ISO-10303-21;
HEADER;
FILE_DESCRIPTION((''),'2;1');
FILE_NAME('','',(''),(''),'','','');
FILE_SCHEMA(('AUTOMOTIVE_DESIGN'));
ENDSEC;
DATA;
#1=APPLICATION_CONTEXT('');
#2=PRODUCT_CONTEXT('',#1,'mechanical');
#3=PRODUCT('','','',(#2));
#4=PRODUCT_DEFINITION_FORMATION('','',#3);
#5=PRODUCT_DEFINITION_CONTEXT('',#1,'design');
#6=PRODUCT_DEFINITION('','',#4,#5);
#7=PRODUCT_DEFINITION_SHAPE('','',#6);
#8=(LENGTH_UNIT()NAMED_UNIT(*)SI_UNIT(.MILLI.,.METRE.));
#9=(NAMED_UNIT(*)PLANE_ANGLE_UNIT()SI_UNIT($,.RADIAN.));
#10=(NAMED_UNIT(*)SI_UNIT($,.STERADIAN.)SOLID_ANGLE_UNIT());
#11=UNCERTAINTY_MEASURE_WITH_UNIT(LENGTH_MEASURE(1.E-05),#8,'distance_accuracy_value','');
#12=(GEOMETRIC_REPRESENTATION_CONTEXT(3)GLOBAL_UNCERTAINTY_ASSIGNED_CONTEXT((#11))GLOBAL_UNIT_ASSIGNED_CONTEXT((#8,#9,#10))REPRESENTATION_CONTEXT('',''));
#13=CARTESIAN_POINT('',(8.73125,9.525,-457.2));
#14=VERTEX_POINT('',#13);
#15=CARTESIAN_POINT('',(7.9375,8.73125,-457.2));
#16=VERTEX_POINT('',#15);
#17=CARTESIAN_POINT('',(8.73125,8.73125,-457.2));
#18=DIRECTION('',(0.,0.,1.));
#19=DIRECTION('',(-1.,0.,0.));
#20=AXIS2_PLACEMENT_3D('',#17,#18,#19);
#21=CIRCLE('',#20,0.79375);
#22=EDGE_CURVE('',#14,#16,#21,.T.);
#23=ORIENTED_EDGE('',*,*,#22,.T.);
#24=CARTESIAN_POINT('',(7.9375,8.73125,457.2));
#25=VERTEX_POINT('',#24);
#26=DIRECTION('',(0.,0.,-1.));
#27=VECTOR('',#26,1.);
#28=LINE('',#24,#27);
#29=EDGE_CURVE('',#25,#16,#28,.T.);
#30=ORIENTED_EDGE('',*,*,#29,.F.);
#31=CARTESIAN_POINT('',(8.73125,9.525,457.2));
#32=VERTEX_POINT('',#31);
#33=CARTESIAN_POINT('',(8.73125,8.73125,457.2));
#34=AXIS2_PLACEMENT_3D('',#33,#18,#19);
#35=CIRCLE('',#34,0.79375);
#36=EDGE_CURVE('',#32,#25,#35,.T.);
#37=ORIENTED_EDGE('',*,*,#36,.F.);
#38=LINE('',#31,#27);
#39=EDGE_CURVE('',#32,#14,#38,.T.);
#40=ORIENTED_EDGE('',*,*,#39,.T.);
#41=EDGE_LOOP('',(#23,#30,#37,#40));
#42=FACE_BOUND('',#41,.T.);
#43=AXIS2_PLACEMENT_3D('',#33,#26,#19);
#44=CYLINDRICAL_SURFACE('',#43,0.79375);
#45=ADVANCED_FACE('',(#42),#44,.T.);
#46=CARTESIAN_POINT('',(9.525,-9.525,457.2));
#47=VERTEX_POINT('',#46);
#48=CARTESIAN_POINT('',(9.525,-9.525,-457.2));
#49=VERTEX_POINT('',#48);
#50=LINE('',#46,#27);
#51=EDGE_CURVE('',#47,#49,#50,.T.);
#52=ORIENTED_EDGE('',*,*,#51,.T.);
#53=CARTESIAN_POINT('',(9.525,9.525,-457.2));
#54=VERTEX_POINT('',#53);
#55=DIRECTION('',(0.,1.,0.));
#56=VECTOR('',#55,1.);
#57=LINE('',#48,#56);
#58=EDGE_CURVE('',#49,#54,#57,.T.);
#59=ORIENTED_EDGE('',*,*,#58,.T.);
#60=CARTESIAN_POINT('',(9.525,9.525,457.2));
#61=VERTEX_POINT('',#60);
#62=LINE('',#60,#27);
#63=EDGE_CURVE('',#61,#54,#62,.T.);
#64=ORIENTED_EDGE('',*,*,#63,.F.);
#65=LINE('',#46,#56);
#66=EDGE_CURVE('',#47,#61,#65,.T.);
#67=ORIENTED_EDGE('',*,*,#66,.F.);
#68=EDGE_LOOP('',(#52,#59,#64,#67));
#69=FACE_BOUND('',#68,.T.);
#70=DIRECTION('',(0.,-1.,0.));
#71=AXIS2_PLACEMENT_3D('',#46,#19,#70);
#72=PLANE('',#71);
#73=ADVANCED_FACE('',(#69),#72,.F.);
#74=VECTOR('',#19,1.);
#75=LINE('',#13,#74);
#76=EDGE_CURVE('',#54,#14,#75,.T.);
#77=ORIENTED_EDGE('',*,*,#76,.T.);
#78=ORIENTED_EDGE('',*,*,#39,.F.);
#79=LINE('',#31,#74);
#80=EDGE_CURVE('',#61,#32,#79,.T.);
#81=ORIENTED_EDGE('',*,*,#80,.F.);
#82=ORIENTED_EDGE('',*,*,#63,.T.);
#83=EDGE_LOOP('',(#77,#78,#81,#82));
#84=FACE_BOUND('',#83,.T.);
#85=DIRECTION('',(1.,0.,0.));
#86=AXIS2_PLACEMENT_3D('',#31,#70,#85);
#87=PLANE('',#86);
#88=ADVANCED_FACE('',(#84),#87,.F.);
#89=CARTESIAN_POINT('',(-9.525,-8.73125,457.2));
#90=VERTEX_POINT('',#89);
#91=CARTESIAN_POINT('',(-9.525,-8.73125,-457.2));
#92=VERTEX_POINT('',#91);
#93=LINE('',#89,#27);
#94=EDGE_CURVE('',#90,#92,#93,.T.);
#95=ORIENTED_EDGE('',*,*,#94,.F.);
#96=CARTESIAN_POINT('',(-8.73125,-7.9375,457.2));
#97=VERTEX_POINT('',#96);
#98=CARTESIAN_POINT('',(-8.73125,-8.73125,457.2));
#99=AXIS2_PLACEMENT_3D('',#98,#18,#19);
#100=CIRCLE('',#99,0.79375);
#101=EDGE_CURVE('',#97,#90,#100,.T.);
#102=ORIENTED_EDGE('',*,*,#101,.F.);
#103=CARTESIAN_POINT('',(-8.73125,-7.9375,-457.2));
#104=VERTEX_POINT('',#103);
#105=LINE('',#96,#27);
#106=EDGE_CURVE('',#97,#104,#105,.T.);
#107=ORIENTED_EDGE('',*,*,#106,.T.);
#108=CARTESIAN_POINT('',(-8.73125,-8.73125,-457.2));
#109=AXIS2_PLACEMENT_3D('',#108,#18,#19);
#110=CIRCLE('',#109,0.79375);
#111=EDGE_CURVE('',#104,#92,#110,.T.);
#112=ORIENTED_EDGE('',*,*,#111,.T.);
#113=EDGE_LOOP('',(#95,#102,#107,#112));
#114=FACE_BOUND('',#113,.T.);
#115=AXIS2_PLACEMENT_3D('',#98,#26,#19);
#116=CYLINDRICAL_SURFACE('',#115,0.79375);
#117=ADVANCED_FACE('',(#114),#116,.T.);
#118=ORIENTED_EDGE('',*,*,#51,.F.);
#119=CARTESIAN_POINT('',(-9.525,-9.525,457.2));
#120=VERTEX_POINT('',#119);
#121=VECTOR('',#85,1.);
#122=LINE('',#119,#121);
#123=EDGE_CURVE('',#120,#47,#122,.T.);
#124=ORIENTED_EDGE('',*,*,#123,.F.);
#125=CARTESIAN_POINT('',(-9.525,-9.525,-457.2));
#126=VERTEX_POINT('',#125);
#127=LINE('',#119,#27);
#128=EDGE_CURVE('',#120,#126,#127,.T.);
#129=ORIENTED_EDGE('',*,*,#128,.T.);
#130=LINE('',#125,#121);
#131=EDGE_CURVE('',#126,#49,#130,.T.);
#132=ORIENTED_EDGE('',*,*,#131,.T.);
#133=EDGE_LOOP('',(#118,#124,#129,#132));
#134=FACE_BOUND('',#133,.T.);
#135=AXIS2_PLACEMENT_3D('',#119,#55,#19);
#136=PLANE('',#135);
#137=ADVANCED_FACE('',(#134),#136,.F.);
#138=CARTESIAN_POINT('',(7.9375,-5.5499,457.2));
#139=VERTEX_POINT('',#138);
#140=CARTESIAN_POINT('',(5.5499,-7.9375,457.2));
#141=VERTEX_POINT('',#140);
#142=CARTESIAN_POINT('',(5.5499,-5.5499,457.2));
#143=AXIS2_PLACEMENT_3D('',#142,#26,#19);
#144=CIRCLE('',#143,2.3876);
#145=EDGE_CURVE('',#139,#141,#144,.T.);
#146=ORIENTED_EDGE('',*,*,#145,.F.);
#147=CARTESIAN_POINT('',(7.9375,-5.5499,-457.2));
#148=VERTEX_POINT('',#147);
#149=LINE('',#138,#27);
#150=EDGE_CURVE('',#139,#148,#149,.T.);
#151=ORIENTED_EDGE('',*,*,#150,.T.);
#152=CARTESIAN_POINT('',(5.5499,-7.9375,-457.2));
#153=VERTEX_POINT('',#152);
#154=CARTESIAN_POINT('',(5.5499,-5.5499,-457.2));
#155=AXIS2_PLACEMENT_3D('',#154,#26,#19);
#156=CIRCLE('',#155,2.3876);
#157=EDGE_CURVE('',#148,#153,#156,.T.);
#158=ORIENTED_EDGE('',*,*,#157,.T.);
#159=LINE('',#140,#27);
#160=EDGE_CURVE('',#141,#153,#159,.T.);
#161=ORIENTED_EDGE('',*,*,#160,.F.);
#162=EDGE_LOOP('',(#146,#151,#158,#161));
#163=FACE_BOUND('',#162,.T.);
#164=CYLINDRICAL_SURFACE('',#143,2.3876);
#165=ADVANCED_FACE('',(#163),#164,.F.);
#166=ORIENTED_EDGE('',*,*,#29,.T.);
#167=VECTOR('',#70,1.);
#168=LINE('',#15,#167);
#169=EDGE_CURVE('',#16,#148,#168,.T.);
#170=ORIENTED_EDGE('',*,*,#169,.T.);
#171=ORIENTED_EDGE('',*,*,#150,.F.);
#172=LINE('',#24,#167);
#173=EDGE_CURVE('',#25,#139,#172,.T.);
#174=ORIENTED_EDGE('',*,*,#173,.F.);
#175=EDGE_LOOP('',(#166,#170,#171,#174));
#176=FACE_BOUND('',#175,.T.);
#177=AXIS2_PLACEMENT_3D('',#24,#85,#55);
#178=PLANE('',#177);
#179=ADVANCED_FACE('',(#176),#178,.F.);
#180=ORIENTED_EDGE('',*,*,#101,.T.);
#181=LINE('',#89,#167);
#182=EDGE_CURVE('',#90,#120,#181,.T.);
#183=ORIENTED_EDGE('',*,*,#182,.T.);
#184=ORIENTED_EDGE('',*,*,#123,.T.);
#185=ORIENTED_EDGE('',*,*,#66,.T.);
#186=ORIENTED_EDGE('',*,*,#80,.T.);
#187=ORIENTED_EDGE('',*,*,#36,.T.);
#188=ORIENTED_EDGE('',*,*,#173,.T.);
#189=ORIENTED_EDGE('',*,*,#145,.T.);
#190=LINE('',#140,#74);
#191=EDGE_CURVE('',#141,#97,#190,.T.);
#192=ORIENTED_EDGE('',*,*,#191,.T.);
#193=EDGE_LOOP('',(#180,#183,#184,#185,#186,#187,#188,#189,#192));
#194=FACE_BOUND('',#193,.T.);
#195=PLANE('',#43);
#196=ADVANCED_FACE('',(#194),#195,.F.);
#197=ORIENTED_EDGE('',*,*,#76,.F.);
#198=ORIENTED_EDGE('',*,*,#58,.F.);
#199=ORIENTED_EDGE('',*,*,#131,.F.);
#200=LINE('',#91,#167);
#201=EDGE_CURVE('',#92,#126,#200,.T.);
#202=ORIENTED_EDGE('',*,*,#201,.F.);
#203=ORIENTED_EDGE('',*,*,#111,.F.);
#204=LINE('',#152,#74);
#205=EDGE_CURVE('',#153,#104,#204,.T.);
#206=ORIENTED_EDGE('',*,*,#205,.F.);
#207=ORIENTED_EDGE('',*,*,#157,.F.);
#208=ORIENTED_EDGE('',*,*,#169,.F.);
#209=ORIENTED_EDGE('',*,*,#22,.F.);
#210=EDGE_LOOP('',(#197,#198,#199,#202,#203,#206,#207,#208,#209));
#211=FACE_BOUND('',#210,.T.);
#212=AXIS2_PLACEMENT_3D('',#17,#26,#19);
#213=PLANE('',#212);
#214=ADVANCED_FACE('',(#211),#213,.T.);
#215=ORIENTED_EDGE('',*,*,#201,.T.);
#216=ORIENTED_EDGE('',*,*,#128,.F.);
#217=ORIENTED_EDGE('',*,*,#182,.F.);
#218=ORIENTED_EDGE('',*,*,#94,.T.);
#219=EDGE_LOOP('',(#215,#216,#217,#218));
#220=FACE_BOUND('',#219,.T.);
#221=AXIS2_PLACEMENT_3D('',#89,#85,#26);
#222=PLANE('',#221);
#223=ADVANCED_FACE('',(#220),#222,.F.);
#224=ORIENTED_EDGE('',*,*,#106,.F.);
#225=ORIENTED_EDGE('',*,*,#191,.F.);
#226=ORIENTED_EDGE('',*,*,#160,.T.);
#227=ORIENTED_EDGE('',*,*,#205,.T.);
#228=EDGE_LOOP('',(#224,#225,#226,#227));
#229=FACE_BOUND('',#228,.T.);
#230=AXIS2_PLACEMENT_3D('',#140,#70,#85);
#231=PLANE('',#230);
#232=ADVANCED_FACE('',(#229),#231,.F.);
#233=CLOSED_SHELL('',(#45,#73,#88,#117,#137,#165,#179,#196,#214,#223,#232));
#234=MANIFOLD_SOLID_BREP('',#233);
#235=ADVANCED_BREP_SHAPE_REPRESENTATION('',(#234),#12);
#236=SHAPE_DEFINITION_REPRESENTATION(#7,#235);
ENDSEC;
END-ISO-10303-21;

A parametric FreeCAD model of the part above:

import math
import FreeCAD as App
import Part
import Sketcher
from FreeCAD import Vector
Q = App.Units.Quantity

doc = App.newDocument("Part")
body = doc.addObject("PartDesign::Body", "Body")

# Sketch on XY plane
sketch1 = body.newObject("Sketcher::SketchObject", "Sketch")
sketch1.AttachmentSupport = (doc.getObject("XY_Plane"), [""])
sketch1.MapMode = "FlatFace"
sketch1.addGeometry([
    Part.LineSegment(Vector(-9.5, -9.5, 0), Vector(9.5, -9.5, 0)),  # 0
    Part.LineSegment(Vector(9.5, -9.5, 0), Vector(9.5, 9.5, 0)),  # 1
    Part.LineSegment(Vector(9.5, 9.5, 0), Vector(8.7, 9.5, 0)),  # 2
    Part.ArcOfCircle(Part.Circle(Vector(8.7, 8.7, 0), Vector(0, 0, 1), 0.8), math.radians(90), math.radians(180)),  # 3
    Part.LineSegment(Vector(7.9, 8.7, 0), Vector(7.9, -5.5, 0)),  # 4
    Part.ArcOfCircle(Part.Circle(Vector(5.5, -5.5, 0), Vector(0, 0, 1), 2.4), math.radians(-90), math.radians(0)),  # 5
    Part.LineSegment(Vector(5.5, -7.9, 0), Vector(-8.7, -7.9, 0)),  # 6
    Part.ArcOfCircle(Part.Circle(Vector(-8.7, -8.7, 0), Vector(0, 0, 1), 0.8), math.radians(90), math.radians(180)),  # 7
    Part.LineSegment(Vector(-9.5, -8.7, 0), Vector(-9.5, -9.5, 0)),  # 8
], False)
sketch1.addConstraint([
    Sketcher.Constraint("Coincident", 0, 2, 1, 1),
    Sketcher.Constraint("Coincident", 1, 2, 2, 1),
    Sketcher.Constraint("Tangent", 2, 2, 3, 1),
    Sketcher.Constraint("Tangent", 3, 2, 4, 1),
    Sketcher.Constraint("Tangent", 4, 2, 5, 2),
    Sketcher.Constraint("Tangent", 5, 1, 6, 1),
    Sketcher.Constraint("Tangent", 6, 2, 7, 1),
    Sketcher.Constraint("Tangent", 7, 2, 8, 1),
    Sketcher.Constraint("Coincident", 8, 2, 0, 1),
    Sketcher.Constraint("Horizontal", 0),
    Sketcher.Constraint("Vertical", 1),
    Sketcher.Constraint("Horizontal", 2),
    Sketcher.Constraint("Vertical", 4),
    Sketcher.Constraint("Horizontal", 6),
    Sketcher.Constraint("Vertical", 8),
    Sketcher.Constraint("Equal", 3, 7),
    Sketcher.Constraint("Symmetric", 3, 3, 7, 3, -1, 1),
    Sketcher.Constraint("Symmetric", 1, 2, 8, 2, -1, 1),
    Sketcher.Constraint("Equal", 0, 1),
    Sketcher.Constraint("Radius", 3, Q("0.03125 in")),
    Sketcher.Constraint("Radius", 5, Q("0.094 in")),
    Sketcher.Constraint("DistanceX", 0, 1, 0, 2, Q("0.75 in")),
])
pad1 = body.newObject("PartDesign::Pad", "Pad")
pad1.Profile = sketch1
pad1.Length = Q("36 in")
pad1.Midplane = True

doc.recompute()
